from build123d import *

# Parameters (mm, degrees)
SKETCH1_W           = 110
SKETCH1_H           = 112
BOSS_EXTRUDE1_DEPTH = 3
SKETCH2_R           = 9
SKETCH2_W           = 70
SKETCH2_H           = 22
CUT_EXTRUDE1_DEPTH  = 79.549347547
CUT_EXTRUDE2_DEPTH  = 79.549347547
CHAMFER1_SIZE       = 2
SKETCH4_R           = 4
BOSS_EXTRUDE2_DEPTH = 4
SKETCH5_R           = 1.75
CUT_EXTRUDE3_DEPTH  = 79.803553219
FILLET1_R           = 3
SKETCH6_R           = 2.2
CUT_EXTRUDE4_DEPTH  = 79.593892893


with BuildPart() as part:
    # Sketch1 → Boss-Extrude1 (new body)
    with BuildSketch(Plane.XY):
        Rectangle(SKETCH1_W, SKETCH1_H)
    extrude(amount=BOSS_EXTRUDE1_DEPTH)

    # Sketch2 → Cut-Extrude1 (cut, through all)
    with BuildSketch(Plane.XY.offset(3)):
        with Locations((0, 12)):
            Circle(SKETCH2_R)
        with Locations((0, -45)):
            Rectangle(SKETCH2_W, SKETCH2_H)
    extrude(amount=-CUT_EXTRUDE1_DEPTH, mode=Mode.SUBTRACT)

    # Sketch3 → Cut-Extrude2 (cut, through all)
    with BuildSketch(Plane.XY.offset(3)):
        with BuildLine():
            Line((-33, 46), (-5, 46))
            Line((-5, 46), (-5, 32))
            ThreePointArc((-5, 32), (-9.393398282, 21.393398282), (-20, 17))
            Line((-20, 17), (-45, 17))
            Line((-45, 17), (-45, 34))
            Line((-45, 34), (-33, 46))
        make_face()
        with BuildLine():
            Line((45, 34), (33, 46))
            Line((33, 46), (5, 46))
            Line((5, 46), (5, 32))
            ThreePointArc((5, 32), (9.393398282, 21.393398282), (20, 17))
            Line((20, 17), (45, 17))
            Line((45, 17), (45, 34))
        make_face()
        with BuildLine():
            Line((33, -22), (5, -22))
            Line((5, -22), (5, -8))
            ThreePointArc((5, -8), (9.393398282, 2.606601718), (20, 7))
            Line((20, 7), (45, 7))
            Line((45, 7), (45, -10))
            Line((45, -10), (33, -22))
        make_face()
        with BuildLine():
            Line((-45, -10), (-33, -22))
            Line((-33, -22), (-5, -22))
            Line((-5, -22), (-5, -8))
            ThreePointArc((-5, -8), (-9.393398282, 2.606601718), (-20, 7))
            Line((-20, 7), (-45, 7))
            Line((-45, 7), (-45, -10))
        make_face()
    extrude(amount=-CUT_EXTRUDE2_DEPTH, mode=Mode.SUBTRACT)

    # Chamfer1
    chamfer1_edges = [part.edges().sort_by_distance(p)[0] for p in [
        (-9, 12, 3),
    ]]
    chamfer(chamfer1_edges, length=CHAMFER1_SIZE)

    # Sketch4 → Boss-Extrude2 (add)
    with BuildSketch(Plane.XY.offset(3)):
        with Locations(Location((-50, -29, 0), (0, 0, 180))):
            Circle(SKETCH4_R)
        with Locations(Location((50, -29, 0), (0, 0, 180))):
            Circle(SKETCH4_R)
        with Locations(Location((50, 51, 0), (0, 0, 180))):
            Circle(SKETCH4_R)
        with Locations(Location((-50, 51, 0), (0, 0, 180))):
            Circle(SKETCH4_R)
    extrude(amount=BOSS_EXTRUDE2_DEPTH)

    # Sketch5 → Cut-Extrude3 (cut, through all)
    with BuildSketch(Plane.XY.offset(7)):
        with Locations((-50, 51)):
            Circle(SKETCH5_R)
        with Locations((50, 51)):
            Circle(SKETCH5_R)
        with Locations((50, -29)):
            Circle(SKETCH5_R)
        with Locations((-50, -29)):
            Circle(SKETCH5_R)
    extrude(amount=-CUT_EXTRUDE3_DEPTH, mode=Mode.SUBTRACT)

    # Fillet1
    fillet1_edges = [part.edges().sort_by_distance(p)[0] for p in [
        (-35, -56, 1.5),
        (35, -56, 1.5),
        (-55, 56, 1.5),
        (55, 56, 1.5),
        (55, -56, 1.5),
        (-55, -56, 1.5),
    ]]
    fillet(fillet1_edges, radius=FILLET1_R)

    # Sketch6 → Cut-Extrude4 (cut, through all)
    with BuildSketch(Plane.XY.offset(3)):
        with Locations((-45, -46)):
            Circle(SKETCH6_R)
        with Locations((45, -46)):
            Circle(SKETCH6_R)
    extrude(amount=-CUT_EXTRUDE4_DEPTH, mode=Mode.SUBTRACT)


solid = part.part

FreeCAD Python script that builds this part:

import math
import FreeCAD as App
import Part
import Sketcher


def edges_at(feature, points):
    """Names of the edges that pass closest to the given points."""
    edges = feature.Shape.Edges
    near = lambda p: min(range(len(edges)), key=lambda i: edges[i].distToShape(Part.Vertex(*p))[0])
    return sorted({f"Edge{near(p) + 1}" for p in points})


def add_polygon(sketch, points):
    """Adds a closed chain of lines whose ends are joined by coincident constraints."""
    first, n = sketch.GeometryCount, len(points)
    for a, b in zip(points, points[1:] + points[:1]):
        sketch.addGeometry(Part.LineSegment(App.Vector(*a, 0), App.Vector(*b, 0)), False)
    for i in range(n):
        sketch.addConstraint(Sketcher.Constraint("Coincident", first + i, 2, first + (i + 1) % n, 1))

doc = App.newDocument("Part")
params = doc.addObject("Spreadsheet::Sheet", "Params")
for row, (alias, value) in enumerate([
    ("sketch1_width", "110 mm"),
    ("sketch1_height", "112 mm"),
    ("pad1_length", "3 mm"),
    ("sketch2_diameter", "18 mm"),
    ("sketch2_width", "70 mm"),
    ("sketch2_height", "22 mm"),
    ("sketch3_radius", "15 mm"),
    ("sketch3_width", "28 mm"),
    ("sketch3_width2", "25 mm"),
    ("sketch3_height", "17 mm"),
    ("chamfer_size", "2 mm"),
    ("sketch4_diameter", "8 mm"),
    ("pad2_length", "4 mm"),
    ("sketch5_diameter", "3.5 mm"),
    ("fillet_radius", "3 mm"),
    ("sketch6_diameter", "4.4 mm"),
], start=1):
    params.set(f"A{row}", alias)
    params.set(f"B{row}", "=" + value)
    params.setAlias(f"B{row}", alias)

body = doc.addObject("PartDesign::Body", "Body")

# Sketch on XY plane
sketch1 = doc.addObject("Sketcher::SketchObject", "Sketch")
body.addObject(sketch1)
sketch1.AttachmentSupport = (doc.XY_Plane, [""])
sketch1.MapMode = "FlatFace"
add_polygon(sketch1, [(-55, 56), (-55, -56), (55, -56), (55, 56)])  # lines 0-3
sketch1.addConstraint(Sketcher.Constraint("Vertical", 0))
sketch1.addConstraint(Sketcher.Constraint("Horizontal", 1))
sketch1.addConstraint(Sketcher.Constraint("Vertical", 2))
sketch1.addConstraint(Sketcher.Constraint("Horizontal", 3))
sketch1.addConstraint(Sketcher.Constraint("Symmetric", 0, 2, 2, 2, -1, 1))
sketch1.addConstraint(Sketcher.Constraint("DistanceX", 1, 1, 1, 2, 110.0))
sketch1.addConstraint(Sketcher.Constraint("DistanceY", 0, 2, 0, 1, 112.0))
sketch1.setExpression("Constraints[9]", "Params.sketch1_width")
sketch1.setExpression("Constraints[10]", "Params.sketch1_height")
pad1 = doc.addObject("PartDesign::Pad", "Pad")
body.addObject(pad1)
pad1.Profile = sketch1
pad1.setExpression("Length", "Params.pad1_length")

# Sketch on XY plane
sketch2 = doc.addObject("Sketcher::SketchObject", "Sketch001")
body.addObject(sketch2)
sketch2.AttachmentSupport = (doc.XY_Plane, [""])
sketch2.MapMode = "FlatFace"
sketch2.AttachmentOffset = App.Placement(App.Vector(0, 0, 3), App.Rotation())
sketch2.addGeometry(Part.Circle(App.Vector(0, 12, 0), App.Vector(0, 0, 1), 9), False)  # 0
add_polygon(sketch2, [(-35, -34), (-35, -56), (35, -56), (35, -34)])  # lines 1-4
sketch2.addConstraint(Sketcher.Constraint("Vertical", 1))
sketch2.addConstraint(Sketcher.Constraint("Horizontal", 2))
sketch2.addConstraint(Sketcher.Constraint("Vertical", 3))
sketch2.addConstraint(Sketcher.Constraint("Horizontal", 4))
sketch2.addConstraint(Sketcher.Constraint("PointOnObject", 0, 3, -2))
sketch2.addConstraint(Sketcher.Constraint("Diameter", 0, 18.0))
sketch2.addConstraint(Sketcher.Constraint("DistanceX", 2, 1, 2, 2, 70.0))
sketch2.addConstraint(Sketcher.Constraint("DistanceY", 1, 2, 1, 1, 22.0))
sketch2.addConstraint(Sketcher.Constraint("DistanceY", -1, 1, 0, 3, 12.0))
sketch2.addConstraint(Sketcher.Constraint("DistanceX", 1, 2, -1, 1, 35.0))
sketch2.addConstraint(Sketcher.Constraint("DistanceY", 1, 2, -1, 1, 56.0))
sketch2.setExpression("Constraints[9]", "Params.sketch2_diameter")
sketch2.setExpression("Constraints[10]", "Params.sketch2_width")
sketch2.setExpression("Constraints[11]", "Params.sketch2_height")
pocket1 = doc.addObject("PartDesign::Pocket", "Pocket")
body.addObject(pocket1)
pocket1.Profile = sketch2
pocket1.Type = "ThroughAll"

# Sketch on XY plane
sketch3 = doc.addObject("Sketcher::SketchObject", "Sketch002")
body.addObject(sketch3)
sketch3.AttachmentSupport = (doc.XY_Plane, [""])
sketch3.MapMode = "FlatFace"
sketch3.AttachmentOffset = App.Placement(App.Vector(0, 0, 3), App.Rotation())
sketch3.addGeometry(Part.LineSegment(App.Vector(-5, 46, 0), App.Vector(-33, 46, 0)), False)
sketch3.addGeometry(Part.LineSegment(App.Vector(-33, 46, 0), App.Vector(-45, 34, 0)), False)
sketch3.addGeometry(Part.LineSegment(App.Vector(-45, 34, 0), App.Vector(-45, 17, 0)), False)
sketch3.addGeometry(Part.LineSegment(App.Vector(-45, 17, 0), App.Vector(-20, 17, 0)), False)
sketch3.addGeometry(Part.ArcOfCircle(Part.Circle(App.Vector(-20, 32, 0), App.Vector(0, 0, 1), 15), math.radians(-90), math.radians(0)), False)
sketch3.addGeometry(Part.LineSegment(App.Vector(-5, 32, 0), App.Vector(-5, 46, 0)), False)
sketch3.addGeometry(Part.LineSegment(App.Vector(45, 34, 0), App.Vector(33, 46, 0)), False)
sketch3.addGeometry(Part.LineSegment(App.Vector(33, 46, 0), App.Vector(5, 46, 0)), False)
sketch3.addGeometry(Part.LineSegment(App.Vector(5, 46, 0), App.Vector(5, 32, 0)), False)
sketch3.addGeometry(Part.ArcOfCircle(Part.Circle(App.Vector(20, 32, 0), App.Vector(0, 0, 1), 15), math.radians(180), math.radians(270)), False)
sketch3.addGeometry(Part.LineSegment(App.Vector(20, 17, 0), App.Vector(45, 17, 0)), False)
sketch3.addGeometry(Part.LineSegment(App.Vector(45, 17, 0), App.Vector(45, 34, 0)), False)
sketch3.addGeometry(Part.LineSegment(App.Vector(5, -22, 0), App.Vector(33, -22, 0)), False)
sketch3.addGeometry(Part.LineSegment(App.Vector(33, -22, 0), App.Vector(45, -10, 0)), False)
sketch3.addGeometry(Part.LineSegment(App.Vector(45, -10, 0), App.Vector(45, 7, 0)), False)
sketch3.addGeometry(Part.LineSegment(App.Vector(45, 7, 0), App.Vector(20, 7, 0)), False)
sketch3.addGeometry(Part.ArcOfCircle(Part.Circle(App.Vector(20, -8, 0), App.Vector(0, 0, 1), 15), math.radians(90), math.radians(180)), False)
sketch3.addGeometry(Part.LineSegment(App.Vector(5, -8, 0), App.Vector(5, -22, 0)), False)
sketch3.addGeometry(Part.LineSegment(App.Vector(-45, -10, 0), App.Vector(-33, -22, 0)), False)
sketch3.addGeometry(Part.LineSegment(App.Vector(-33, -22, 0), App.Vector(-5, -22, 0)), False)
sketch3.addGeometry(Part.LineSegment(App.Vector(-5, -22, 0), App.Vector(-5, -8, 0)), False)
sketch3.addGeometry(Part.ArcOfCircle(Part.Circle(App.Vector(-20, -8, 0), App.Vector(0, 0, 1), 15), math.radians(0), math.radians(90)), False)
sketch3.addGeometry(Part.LineSegment(App.Vector(-20, 7, 0), App.Vector(-45, 7, 0)), False)
sketch3.addGeometry(Part.LineSegment(App.Vector(-45, 7, 0), App.Vector(-45, -10, 0)), False)
sketch3.addConstraint(Sketcher.Constraint("Coincident", 0, 2, 1, 1))
sketch3.addConstraint(Sketcher.Constraint("Coincident", 1, 2, 2, 1))
sketch3.addConstraint(Sketcher.Constraint("Coincident", 2, 2, 3, 1))
sketch3.addConstraint(Sketcher.Constraint("Tangent", 3, 2, 4, 1))
sketch3.addConstraint(Sketcher.Constraint("Tangent", 4, 2, 5, 1))
sketch3.addConstraint(Sketcher.Constraint("Coincident", 5, 2, 0, 1))
sketch3.addConstraint(Sketcher.Constraint("Coincident", 6, 2, 7, 1))
sketch3.addConstraint(Sketcher.Constraint("Coincident", 7, 2, 8, 1))
sketch3.addConstraint(Sketcher.Constraint("Tangent", 8, 2, 9, 1))
sketch3.addConstraint(Sketcher.Constraint("Tangent", 9, 2, 10, 1))
sketch3.addConstraint(Sketcher.Constraint("Coincident", 10, 2, 11, 1))
sketch3.addConstraint(Sketcher.Constraint("Coincident", 11, 2, 6, 1))
sketch3.addConstraint(Sketcher.Constraint("Coincident", 12, 2, 13, 1))
sketch3.addConstraint(Sketcher.Constraint("Coincident", 13, 2, 14, 1))
sketch3.addConstraint(Sketcher.Constraint("Coincident", 14, 2, 15, 1))
sketch3.addConstraint(Sketcher.Constraint("Tangent", 15, 2, 16, 1))
sketch3.addConstraint(Sketcher.Constraint("Tangent", 16, 2, 17, 1))
sketch3.addConstraint(Sketcher.Constraint("Coincident", 17, 2, 12, 1))
sketch3.addConstraint(Sketcher.Constraint("Coincident", 18, 2, 19, 1))
sketch3.addConstraint(Sketcher.Constraint("Coincident", 19, 2, 20, 1))
sketch3.addConstraint(Sketcher.Constraint("Tangent", 20, 2, 21, 1))
sketch3.addConstraint(Sketcher.Constraint("Tangent", 21, 2, 22, 1))
sketch3.addConstraint(Sketcher.Constraint("Coincident", 22, 2, 23, 1))
sketch3.addConstraint(Sketcher.Constraint("Coincident", 23, 2, 18, 1))
sketch3.addConstraint(Sketcher.Constraint("Horizontal", 0))
sketch3.addConstraint(Sketcher.Constraint("Vertical", 2))
sketch3.addConstraint(Sketcher.Constraint("Horizontal", 3))
sketch3.addConstraint(Sketcher.Constraint("Vertical", 5))
sketch3.addConstraint(Sketcher.Constraint("Horizontal", 7))
sketch3.addConstraint(Sketcher.Constraint("Vertical", 8))
sketch3.addConstraint(Sketcher.Constraint("Horizontal", 10))
sketch3.addConstraint(Sketcher.Constraint("Vertical", 11))
sketch3.addConstraint(Sketcher.Constraint("Horizontal", 12))
sketch3.addConstraint(Sketcher.Constraint("Vertical", 14))
sketch3.addConstraint(Sketcher.Constraint("Horizontal", 15))
sketch3.addConstraint(Sketcher.Constraint("Vertical", 17))
sketch3.addConstraint(Sketcher.Constraint("Horizontal", 19))
sketch3.addConstraint(Sketcher.Constraint("Vertical", 20))
sketch3.addConstraint(Sketcher.Constraint("Horizontal", 22))
sketch3.addConstraint(Sketcher.Constraint("Vertical", 23))
sketch3.addConstraint(Sketcher.Constraint("Equal", 4, 9))
sketch3.addConstraint(Sketcher.Constraint("Equal", 9, 16))
sketch3.addConstraint(Sketcher.Constraint("Equal", 16, 21))
sketch3.addConstraint(Sketcher.Constraint("Symmetric", 4, 3, 9, 3, -2))
sketch3.addConstraint(Sketcher.Constraint("Symmetric", 16, 3, 21, 3, -2))
sketch3.addConstraint(Sketcher.Constraint("Symmetric", 0, 2, 6, 2, -2))
sketch3.addConstraint(Sketcher.Constraint("Symmetric", 1, 2, 11, 2, -2))
sketch3.addConstraint(Sketcher.Constraint("Symmetric", 12, 2, 18, 2, -2))
sketch3.addConstraint(Sketcher.Constraint("Symmetric", 13, 2, 23, 2, -2))
sketch3.addConstraint(Sketcher.Constraint("Perpendicular", 1, 6))
sketch3.addConstraint(Sketcher.Constraint("Perpendicular", 6, 13))
sketch3.addConstraint(Sketcher.Constraint("Vertical", 9, 3, 16, 3))
sketch3.addConstraint(Sketcher.Constraint("Vertical", 6, 2, 12, 2))
sketch3.addConstraint(Sketcher.Constraint("Vertical", 11, 2, 13, 2))
sketch3.addConstraint(Sketcher.Constraint("Equal", 11, 14))
sketch3.addConstraint(Sketcher.Constraint("Radius", 4, 15.0))
sketch3.addConstraint(Sketcher.Constraint("DistanceX", 0, 2, 0, 1, 28.0))
sketch3.addConstraint(Sketcher.Constraint("DistanceX", 3, 1, 3, 2, 25.0))
sketch3.addConstraint(Sketcher.Constraint("DistanceY", 2, 2, 2, 1, 17.0))
sketch3.addConstraint(Sketcher.Constraint("DistanceX", 4, 3, -1, 1, 20.0))
sketch3.addConstraint(Sketcher.Constraint("DistanceY", -1, 1, 4, 3, 32.0))
sketch3.addConstraint(Sketcher.Constraint("DistanceY", 16, 3, -1, 1, 8.0))
sketch3.setExpression("Constraints[55]", "Params.sketch3_radius")
sketch3.setExpression("Constraints[56]", "Params.sketch3_width")
sketch3.setExpression("Constraints[57]", "Params.sketch3_width2")
sketch3.setExpression("Constraints[58]", "Params.sketch3_height")
pocket2 = doc.addObject("PartDesign::Pocket", "Pocket001")
body.addObject(pocket2)
pocket2.Profile = sketch3
pocket2.Type = "ThroughAll"
doc.recompute()

chamfer = doc.addObject("PartDesign::Chamfer", "Chamfer")
body.addObject(chamfer)
chamfer.Base = (pocket2, edges_at(pocket2, [(-9, 12, 3)]))
chamfer.setExpression("Size", "Params.chamfer_size")

# Sketch on XY plane
sketch4 = doc.addObject("Sketcher::SketchObject", "Sketch003")
body.addObject(sketch4)
sketch4.AttachmentSupport = (doc.XY_Plane, [""])
sketch4.MapMode = "FlatFace"
sketch4.AttachmentOffset = App.Placement(App.Vector(0, 0, 3), App.Rotation())
sketch4.addGeometry(Part.Circle(App.Vector(-50, -29, 0), App.Vector(0, 0, 1), 4), False)
sketch4.addGeometry(Part.Circle(App.Vector(50, -29, 0), App.Vector(0, 0, 1), 4), False)
sketch4.addGeometry(Part.Circle(App.Vector(50, 51, 0), App.Vector(0, 0, 1), 4), False)
sketch4.addGeometry(Part.Circle(App.Vector(-50, 51, 0), App.Vector(0, 0, 1), 4), False)
sketch4.addConstraint(Sketcher.Constraint("Equal", 0, 1))
sketch4.addConstraint(Sketcher.Constraint("Equal", 1, 2))
sketch4.addConstraint(Sketcher.Constraint("Equal", 2, 3))
sketch4.addConstraint(Sketcher.Constraint("Symmetric", 0, 3, 1, 3, -2))
sketch4.addConstraint(Sketcher.Constraint("Symmetric", 2, 3, 3, 3, -2))
sketch4.addConstraint(Sketcher.Constraint("Vertical", 1, 3, 2, 3))
sketch4.addConstraint(Sketcher.Constraint("Diameter", 0, 8.0))
sketch4.addConstraint(Sketcher.Constraint("DistanceX", 0, 3, -1, 1, 50.0))
sketch4.addConstraint(Sketcher.Constraint("DistanceY", 0, 3, -1, 1, 29.0))
sketch4.addConstraint(Sketcher.Constraint("DistanceY", -1, 1, 2, 3, 51.0))
sketch4.setExpression("Constraints[6]", "Params.sketch4_diameter")
pad2 = doc.addObject("PartDesign::Pad", "Pad001")
body.addObject(pad2)
pad2.Profile = sketch4
pad2.setExpression("Length", "Params.pad2_length")

# Sketch on XY plane
sketch5 = doc.addObject("Sketcher::SketchObject", "Sketch004")
body.addObject(sketch5)
sketch5.AttachmentSupport = (doc.XY_Plane, [""])
sketch5.MapMode = "FlatFace"
sketch5.AttachmentOffset = App.Placement(App.Vector(0, 0, 7), App.Rotation())
sketch5.addGeometry(Part.Circle(App.Vector(-50, 51, 0), App.Vector(0, 0, 1), 1.8), False)
sketch5.addGeometry(Part.Circle(App.Vector(50, 51, 0), App.Vector(0, 0, 1), 1.8), False)
sketch5.addGeometry(Part.Circle(App.Vector(50, -29, 0), App.Vector(0, 0, 1), 1.8), False)
sketch5.addGeometry(Part.Circle(App.Vector(-50, -29, 0), App.Vector(0, 0, 1), 1.8), False)
sketch5.addConstraint(Sketcher.Constraint("Equal", 0, 1))
sketch5.addConstraint(Sketcher.Constraint("Equal", 1, 2))
sketch5.addConstraint(Sketcher.Constraint("Equal", 2, 3))
sketch5.addConstraint(Sketcher.Constraint("Symmetric", 0, 3, 1, 3, -2))
sketch5.addConstraint(Sketcher.Constraint("Symmetric", 2, 3, 3, 3, -2))
sketch5.addConstraint(Sketcher.Constraint("Vertical", 1, 3, 2, 3))
sketch5.addConstraint(Sketcher.Constraint("Diameter", 0, 3.5))
sketch5.addConstraint(Sketcher.Constraint("DistanceX", 0, 3, -1, 1, 50.0))
sketch5.addConstraint(Sketcher.Constraint("DistanceY", -1, 1, 0, 3, 51.0))
sketch5.addConstraint(Sketcher.Constraint("DistanceY", 2, 3, -1, 1, 29.0))
sketch5.setExpression("Constraints[6]", "Params.sketch5_diameter")
pocket3 = doc.addObject("PartDesign::Pocket", "Pocket002")
body.addObject(pocket3)
pocket3.Profile = sketch5
pocket3.Type = "ThroughAll"
doc.recompute()

fillet = doc.addObject("PartDesign::Fillet", "Fillet")
body.addObject(fillet)
fillet.Base = (pocket3, edges_at(pocket3, [
    (-35, -56, 1.5),
    (35, -56, 1.5),
    (-55, 56, 1.5),
    (55, 56, 1.5),
    (55, -56, 1.5),
    (-55, -56, 1.5),
]))
fillet.setExpression("Radius", "Params.fillet_radius")

# Sketch on XY plane
sketch6 = doc.addObject("Sketcher::SketchObject", "Sketch005")
body.addObject(sketch6)
sketch6.AttachmentSupport = (doc.XY_Plane, [""])
sketch6.MapMode = "FlatFace"
sketch6.AttachmentOffset = App.Placement(App.Vector(0, 0, 3), App.Rotation())
sketch6.addGeometry(Part.Circle(App.Vector(-45, -46, 0), App.Vector(0, 0, 1), 2.2), False)
sketch6.addGeometry(Part.Circle(App.Vector(45, -46, 0), App.Vector(0, 0, 1), 2.2), False)
sketch6.addConstraint(Sketcher.Constraint("Equal", 0, 1))
sketch6.addConstraint(Sketcher.Constraint("Symmetric", 0, 3, 1, 3, -2))
sketch6.addConstraint(Sketcher.Constraint("Diameter", 0, 4.4))
sketch6.addConstraint(Sketcher.Constraint("DistanceX", 0, 3, -1, 1, 45.0))
sketch6.addConstraint(Sketcher.Constraint("DistanceY", 0, 3, -1, 1, 46.0))
sketch6.setExpression("Constraints[2]", "Params.sketch6_diameter")
pocket4 = doc.addObject("PartDesign::Pocket", "Pocket003")
body.addObject(pocket4)
pocket4.Profile = sketch6
pocket4.Type = "ThroughAll"

doc.recompute()
